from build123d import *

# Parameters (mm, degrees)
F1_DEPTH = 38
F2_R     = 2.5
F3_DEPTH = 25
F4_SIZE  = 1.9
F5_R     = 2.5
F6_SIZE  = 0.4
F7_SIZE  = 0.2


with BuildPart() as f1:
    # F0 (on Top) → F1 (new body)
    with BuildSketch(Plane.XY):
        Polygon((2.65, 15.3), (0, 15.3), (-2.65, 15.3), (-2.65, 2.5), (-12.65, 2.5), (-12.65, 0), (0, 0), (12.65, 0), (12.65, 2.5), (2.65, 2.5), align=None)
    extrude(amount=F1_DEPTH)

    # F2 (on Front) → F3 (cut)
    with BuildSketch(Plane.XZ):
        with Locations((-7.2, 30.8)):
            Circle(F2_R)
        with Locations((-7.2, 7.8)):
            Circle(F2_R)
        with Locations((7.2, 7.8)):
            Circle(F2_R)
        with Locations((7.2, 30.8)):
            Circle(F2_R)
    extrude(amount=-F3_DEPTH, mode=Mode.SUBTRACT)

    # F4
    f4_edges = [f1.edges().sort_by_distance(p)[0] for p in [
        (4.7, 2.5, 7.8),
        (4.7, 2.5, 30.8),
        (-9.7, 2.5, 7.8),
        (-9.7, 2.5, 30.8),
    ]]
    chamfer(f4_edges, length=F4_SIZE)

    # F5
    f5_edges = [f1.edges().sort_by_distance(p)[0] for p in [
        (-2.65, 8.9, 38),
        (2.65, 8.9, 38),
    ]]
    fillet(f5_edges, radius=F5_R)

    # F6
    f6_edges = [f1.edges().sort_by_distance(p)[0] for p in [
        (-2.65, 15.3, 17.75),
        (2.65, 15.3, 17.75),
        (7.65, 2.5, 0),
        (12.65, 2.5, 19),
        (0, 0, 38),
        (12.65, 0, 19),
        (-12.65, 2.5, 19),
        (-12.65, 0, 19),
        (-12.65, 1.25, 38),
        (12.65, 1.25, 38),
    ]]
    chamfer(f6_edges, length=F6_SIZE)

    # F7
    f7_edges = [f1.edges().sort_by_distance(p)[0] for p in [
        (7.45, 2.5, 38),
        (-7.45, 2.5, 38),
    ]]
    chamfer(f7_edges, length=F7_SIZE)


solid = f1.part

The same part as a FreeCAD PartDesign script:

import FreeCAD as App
import Part
import Sketcher
Q = App.Units.Quantity


def edges_at(feature, points):
    """Names of the edges that pass closest to the given points."""
    edges = feature.Shape.Edges
    near = lambda p: min(range(len(edges)), key=lambda i: edges[i].distToShape(Part.Vertex(*p))[0])
    return sorted({f"Edge{near(p) + 1}" for p in points})


def add_polygon(sketch, points):
    """Adds a closed chain of lines whose ends are joined by coincident constraints."""
    first, n = sketch.GeometryCount, len(points)
    for a, b in zip(points, points[1:] + points[:1]):
        sketch.addGeometry(Part.LineSegment(App.Vector(*a, 0), App.Vector(*b, 0)), False)
    for i in range(n):
        sketch.addConstraint(Sketcher.Constraint("Coincident", first + i, 2, first + (i + 1) % n, 1))

doc = App.newDocument("Part")
params = doc.addObject("Spreadsheet::Sheet", "Params")
for row, (alias, value) in enumerate([
    ("sketch1_width", "10 mm"),
    ("sketch1_width2", "5.3 mm"),
    ("sketch1_height", "12.8 mm"),
    ("sketch1_height2", "2.5 mm"),
    ("pad1_length", "38 mm"),
    ("sketch2_diameter", "5 mm"),
    ("pocket1_length", "25 mm"),
    ("chamfer_size", "1.9 mm"),
    ("fillet_radius", "2.5 mm"),
    ("chamfer2_size", "0.4 mm"),
    ("chamfer3_size", "0.2 mm"),
], start=1):
    params.set(f"A{row}", alias)
    params.set(f"B{row}", "=" + value)
    params.setAlias(f"B{row}", alias)

body = doc.addObject("PartDesign::Body", "Body")

# Sketch on XY plane
sketch1 = body.newObject("Sketcher::SketchObject", "Sketch")
sketch1.AttachmentSupport = (doc.getObject("XY_Plane"), [""])
sketch1.MapMode = "FlatFace"
add_polygon(sketch1, [(2.65, 15.3), (-2.65, 15.3), (-2.65, 2.5), (-12.65, 2.5), (-12.65, 0), (12.65, 0), (12.65, 2.5), (2.65, 2.5)])  # lines 0-7
sketch1.addConstraint([
    Sketcher.Constraint("Horizontal", 0),
    Sketcher.Constraint("Vertical", 1),
    Sketcher.Constraint("Horizontal", 2),
    Sketcher.Constraint("Vertical", 3),
    Sketcher.Constraint("Horizontal", 4),
    Sketcher.Constraint("Vertical", 5),
    Sketcher.Constraint("Horizontal", 6),
    Sketcher.Constraint("Vertical", 7),
    Sketcher.Constraint("Symmetric", 3, 2, 4, 2, -1, 1),
    Sketcher.Constraint("Symmetric", 1, 2, 6, 2, -2),
    Sketcher.Constraint("DistanceX", 2, 2, 2, 1, Q("10 mm")),
    Sketcher.Constraint("DistanceX", 0, 2, 0, 1, Q("5.3 mm")),
    Sketcher.Constraint("DistanceY", 1, 2, 1, 1, Q("12.8 mm")),
    Sketcher.Constraint("DistanceY", 3, 2, 3, 1, Q("2.5 mm")),
])
sketch1.setExpression("Constraints[18]", "Params.sketch1_width")
sketch1.setExpression("Constraints[19]", "Params.sketch1_width2")
sketch1.setExpression("Constraints[20]", "Params.sketch1_height")
sketch1.setExpression("Constraints[21]", "Params.sketch1_height2")
pad1 = body.newObject("PartDesign::Pad", "Pad")
pad1.Profile = sketch1
pad1.setExpression("Length", "Params.pad1_length")

# Sketch on XZ plane
sketch2 = body.newObject("Sketcher::SketchObject", "Sketch001")
sketch2.AttachmentSupport = (doc.getObject("XZ_Plane"), [""])
sketch2.MapMode = "FlatFace"
sketch2.addGeometry([
    Part.Circle(App.Vector(-7.2, 30.8, 0), App.Vector(0, 0, 1), 2.5),
    Part.Circle(App.Vector(-7.2, 7.8, 0), App.Vector(0, 0, 1), 2.5),
    Part.Circle(App.Vector(7.2, 7.8, 0), App.Vector(0, 0, 1), 2.5),
    Part.Circle(App.Vector(7.2, 30.8, 0), App.Vector(0, 0, 1), 2.5),
], False)
sketch2.addConstraint([
    Sketcher.Constraint("Equal", 0, 1),
    Sketcher.Constraint("Equal", 1, 2),
    Sketcher.Constraint("Equal", 2, 3),
    Sketcher.Constraint("Symmetric", 1, 3, 2, 3, -2),
    Sketcher.Constraint("Symmetric", 0, 3, 3, 3, -2),
    Sketcher.Constraint("Vertical", 0, 3, 1, 3),
    Sketcher.Constraint("Diameter", 0, Q("5 mm")),
    Sketcher.Constraint("DistanceY", 1, 3, 0, 3, Q("23 mm")),
    Sketcher.Constraint("DistanceX", 0, 3, -1, 1, Q("7.2 mm")),
    Sketcher.Constraint("DistanceY", -1, 1, 0, 3, Q("30.8 mm")),
])
sketch2.setExpression("Constraints[6]", "Params.sketch2_diameter")
pocket1 = body.newObject("PartDesign::Pocket", "Pocket")
pocket1.Profile = sketch2
pocket1.setExpression("Length", "Params.pocket1_length")
doc.recompute()

chamfer = body.newObject("PartDesign::Chamfer", "Chamfer")
chamfer.Base = (pocket1, edges_at(pocket1, [
    (4.7, 2.5, 7.8),
    (4.7, 2.5, 30.8),
    (-9.7, 2.5, 7.8),
    (-9.7, 2.5, 30.8),
]))
chamfer.setExpression("Size", "Params.chamfer_size")
doc.recompute()

fillet = body.newObject("PartDesign::Fillet", "Fillet")
fillet.Base = (chamfer, edges_at(chamfer, [(-2.65, 8.9, 38), (2.65, 8.9, 38)]))
fillet.setExpression("Radius", "Params.fillet_radius")
doc.recompute()

chamfer2 = body.newObject("PartDesign::Chamfer", "Chamfer001")
chamfer2.Base = (fillet, edges_at(fillet, [
    (-2.65, 15.3, 17.75),
    (2.65, 15.3, 17.75),
    (7.65, 2.5, 0),
    (12.65, 2.5, 19),
    (0, 0, 38),
    (12.65, 0, 19),
    (-12.65, 2.5, 19),
    (-12.65, 0, 19),
    (-12.65, 1.25, 38),
    (12.65, 1.25, 38),
]))
chamfer2.setExpression("Size", "Params.chamfer2_size")
doc.recompute()

chamfer3 = body.newObject("PartDesign::Chamfer", "Chamfer002")
chamfer3.Base = (chamfer2, edges_at(chamfer2, [(6.2, 2.5, 38), (-6.2, 2.5, 38)]))
chamfer3.setExpression("Size", "Params.chamfer3_size")

doc.recompute()
